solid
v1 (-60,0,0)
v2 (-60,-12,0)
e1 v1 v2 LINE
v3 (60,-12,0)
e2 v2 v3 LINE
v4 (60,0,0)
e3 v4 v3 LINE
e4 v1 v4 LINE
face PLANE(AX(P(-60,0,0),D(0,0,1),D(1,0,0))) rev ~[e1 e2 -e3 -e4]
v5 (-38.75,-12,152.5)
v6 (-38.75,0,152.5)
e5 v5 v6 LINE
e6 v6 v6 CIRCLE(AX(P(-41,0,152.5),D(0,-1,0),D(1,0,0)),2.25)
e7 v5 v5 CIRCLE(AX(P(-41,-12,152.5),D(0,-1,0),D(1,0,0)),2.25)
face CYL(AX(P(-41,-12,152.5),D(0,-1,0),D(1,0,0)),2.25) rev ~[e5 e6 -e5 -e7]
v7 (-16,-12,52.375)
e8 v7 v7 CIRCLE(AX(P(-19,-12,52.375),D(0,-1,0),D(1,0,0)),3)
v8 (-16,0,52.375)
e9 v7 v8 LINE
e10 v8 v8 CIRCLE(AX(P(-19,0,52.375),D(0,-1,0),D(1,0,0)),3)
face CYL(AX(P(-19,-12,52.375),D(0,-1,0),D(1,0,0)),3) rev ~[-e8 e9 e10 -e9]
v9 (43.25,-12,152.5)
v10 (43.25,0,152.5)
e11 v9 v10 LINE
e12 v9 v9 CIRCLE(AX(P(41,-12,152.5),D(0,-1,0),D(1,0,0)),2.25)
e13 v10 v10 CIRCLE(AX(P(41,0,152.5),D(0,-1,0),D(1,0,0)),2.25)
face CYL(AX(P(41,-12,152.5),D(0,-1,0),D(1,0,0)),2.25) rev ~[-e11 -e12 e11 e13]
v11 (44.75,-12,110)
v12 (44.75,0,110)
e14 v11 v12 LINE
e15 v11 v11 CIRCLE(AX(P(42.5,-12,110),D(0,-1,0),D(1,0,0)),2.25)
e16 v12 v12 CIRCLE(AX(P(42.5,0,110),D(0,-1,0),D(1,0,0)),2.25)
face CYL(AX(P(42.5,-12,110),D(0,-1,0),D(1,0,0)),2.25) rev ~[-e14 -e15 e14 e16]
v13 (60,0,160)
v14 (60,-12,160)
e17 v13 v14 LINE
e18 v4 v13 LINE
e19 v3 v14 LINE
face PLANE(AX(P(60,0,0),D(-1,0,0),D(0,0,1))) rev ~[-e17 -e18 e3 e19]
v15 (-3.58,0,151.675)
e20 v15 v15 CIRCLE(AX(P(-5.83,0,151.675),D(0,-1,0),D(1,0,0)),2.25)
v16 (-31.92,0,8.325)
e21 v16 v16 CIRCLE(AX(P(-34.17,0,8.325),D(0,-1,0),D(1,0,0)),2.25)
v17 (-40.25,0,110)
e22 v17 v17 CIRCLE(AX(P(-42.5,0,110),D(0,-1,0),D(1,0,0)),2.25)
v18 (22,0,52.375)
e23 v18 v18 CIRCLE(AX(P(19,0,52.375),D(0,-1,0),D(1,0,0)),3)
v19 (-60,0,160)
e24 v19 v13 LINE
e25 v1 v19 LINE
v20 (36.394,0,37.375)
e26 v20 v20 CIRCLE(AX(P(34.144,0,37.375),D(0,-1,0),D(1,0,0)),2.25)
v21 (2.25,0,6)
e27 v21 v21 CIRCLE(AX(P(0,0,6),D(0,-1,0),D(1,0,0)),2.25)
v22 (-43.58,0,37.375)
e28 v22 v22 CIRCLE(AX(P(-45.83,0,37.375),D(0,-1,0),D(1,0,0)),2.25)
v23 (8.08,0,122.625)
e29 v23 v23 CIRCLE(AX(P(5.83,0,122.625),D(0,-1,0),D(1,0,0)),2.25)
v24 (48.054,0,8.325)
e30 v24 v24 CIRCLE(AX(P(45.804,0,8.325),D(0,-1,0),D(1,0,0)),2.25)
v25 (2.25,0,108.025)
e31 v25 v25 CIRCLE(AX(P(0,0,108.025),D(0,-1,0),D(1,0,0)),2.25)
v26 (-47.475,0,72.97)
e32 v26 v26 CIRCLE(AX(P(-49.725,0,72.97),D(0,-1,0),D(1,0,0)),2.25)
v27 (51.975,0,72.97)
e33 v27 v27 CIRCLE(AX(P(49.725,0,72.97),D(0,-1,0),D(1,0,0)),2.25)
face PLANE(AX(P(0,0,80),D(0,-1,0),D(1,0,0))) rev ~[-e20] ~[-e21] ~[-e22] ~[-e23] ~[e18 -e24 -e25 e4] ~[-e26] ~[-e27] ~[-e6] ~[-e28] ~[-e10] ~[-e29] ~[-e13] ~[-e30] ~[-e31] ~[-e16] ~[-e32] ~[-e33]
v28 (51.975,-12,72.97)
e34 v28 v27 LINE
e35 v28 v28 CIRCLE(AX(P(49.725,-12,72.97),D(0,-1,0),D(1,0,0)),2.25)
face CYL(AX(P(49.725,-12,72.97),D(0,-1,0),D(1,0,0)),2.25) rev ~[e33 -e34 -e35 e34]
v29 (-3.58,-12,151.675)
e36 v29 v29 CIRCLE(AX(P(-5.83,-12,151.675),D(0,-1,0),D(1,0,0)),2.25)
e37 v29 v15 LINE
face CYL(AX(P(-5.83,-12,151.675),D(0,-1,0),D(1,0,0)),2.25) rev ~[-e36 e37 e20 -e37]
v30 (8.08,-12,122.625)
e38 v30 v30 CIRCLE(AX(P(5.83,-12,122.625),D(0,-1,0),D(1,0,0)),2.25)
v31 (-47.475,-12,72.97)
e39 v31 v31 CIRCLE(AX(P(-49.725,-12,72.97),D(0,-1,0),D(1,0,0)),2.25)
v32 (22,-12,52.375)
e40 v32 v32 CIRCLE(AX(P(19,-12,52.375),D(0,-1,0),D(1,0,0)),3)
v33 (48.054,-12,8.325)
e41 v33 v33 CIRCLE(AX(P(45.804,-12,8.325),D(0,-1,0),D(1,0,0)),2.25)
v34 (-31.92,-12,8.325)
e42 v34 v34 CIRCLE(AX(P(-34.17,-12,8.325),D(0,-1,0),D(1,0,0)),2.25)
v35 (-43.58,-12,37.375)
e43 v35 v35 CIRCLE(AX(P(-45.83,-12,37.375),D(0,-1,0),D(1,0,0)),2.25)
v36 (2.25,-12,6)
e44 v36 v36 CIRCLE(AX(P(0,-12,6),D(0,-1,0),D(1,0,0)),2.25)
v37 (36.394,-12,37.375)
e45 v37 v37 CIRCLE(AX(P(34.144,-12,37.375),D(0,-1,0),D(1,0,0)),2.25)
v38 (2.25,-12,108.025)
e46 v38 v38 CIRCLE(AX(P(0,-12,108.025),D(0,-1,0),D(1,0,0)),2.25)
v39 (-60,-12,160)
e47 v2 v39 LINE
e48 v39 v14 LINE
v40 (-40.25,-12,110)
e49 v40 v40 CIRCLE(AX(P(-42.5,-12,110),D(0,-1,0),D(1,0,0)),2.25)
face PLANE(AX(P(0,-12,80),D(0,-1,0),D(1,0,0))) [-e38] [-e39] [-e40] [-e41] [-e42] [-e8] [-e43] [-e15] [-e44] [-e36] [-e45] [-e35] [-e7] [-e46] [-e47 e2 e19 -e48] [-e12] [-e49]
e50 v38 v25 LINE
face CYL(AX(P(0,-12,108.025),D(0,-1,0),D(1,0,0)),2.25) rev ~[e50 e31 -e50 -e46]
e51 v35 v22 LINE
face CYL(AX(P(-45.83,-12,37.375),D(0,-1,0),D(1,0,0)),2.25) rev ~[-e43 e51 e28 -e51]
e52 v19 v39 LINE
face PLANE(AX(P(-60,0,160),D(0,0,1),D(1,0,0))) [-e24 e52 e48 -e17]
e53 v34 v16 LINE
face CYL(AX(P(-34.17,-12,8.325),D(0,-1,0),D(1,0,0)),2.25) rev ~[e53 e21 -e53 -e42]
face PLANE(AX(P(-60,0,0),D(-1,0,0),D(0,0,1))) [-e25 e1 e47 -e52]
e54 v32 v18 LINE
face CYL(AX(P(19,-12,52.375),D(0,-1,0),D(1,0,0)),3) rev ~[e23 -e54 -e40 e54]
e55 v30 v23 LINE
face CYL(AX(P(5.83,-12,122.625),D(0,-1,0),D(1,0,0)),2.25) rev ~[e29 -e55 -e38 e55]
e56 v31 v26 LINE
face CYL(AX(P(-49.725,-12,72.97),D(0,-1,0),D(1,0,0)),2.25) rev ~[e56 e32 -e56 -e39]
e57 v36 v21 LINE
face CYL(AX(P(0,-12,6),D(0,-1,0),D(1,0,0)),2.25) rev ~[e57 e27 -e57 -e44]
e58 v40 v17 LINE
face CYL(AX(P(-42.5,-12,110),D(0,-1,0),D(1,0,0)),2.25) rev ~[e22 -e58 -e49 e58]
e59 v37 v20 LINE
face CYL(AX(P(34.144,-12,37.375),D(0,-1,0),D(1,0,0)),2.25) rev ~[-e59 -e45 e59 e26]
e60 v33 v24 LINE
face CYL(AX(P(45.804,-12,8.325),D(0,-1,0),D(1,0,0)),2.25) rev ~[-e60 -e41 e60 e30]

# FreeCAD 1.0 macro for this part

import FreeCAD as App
import Part
import Sketcher

V = App.Vector

doc = App.newDocument("Part")
body = doc.addObject("PartDesign::Body", "Body")

# Sketch on XZ plane
sketch1 = body.newObject("Sketcher::SketchObject", "Sketch")
sketch1.AttachmentSupport = (doc.getObject("XZ_Plane"), [""])
sketch1.MapMode = "FlatFace"
sketch1.addGeometry([
    Part.LineSegment(V(-60, 160, 0), V(-60, 0, 0)),
    Part.LineSegment(V(-60, 0, 0), V(60, 0, 0)),
    Part.LineSegment(V(60, 0, 0), V(60, 160, 0)),
    Part.LineSegment(V(60, 160, 0), V(-60, 160, 0)),
], False)
sketch1.addConstraint([
    Sketcher.Constraint("Coincident", 0, 2, 1, 1),
    Sketcher.Constraint("Coincident", 1, 2, 2, 1),
    Sketcher.Constraint("Coincident", 2, 2, 3, 1),
    Sketcher.Constraint("Coincident", 3, 2, 0, 1),
    Sketcher.Constraint("Vertical", 0),
    Sketcher.Constraint("Horizontal", 1),
    Sketcher.Constraint("Vertical", 2),
    Sketcher.Constraint("Horizontal", 3),
    Sketcher.Constraint("Symmetric", 0, 2, 1, 2, -1, 1),
    Sketcher.Constraint("DistanceX", 1, 1, 1, 2, 120.0),
    Sketcher.Constraint("DistanceY", 0, 2, 0, 1, 160.0),
])
pad1 = body.newObject("PartDesign::Pad", "Pad")
pad1.Profile = sketch1
pad1.Length = 12

# Sketch on XZ plane
sketch2 = body.newObject("Sketcher::SketchObject", "Sketch001")
sketch2.AttachmentSupport = (doc.getObject("XZ_Plane"), [""])
sketch2.MapMode = "FlatFace"
sketch2.AttachmentOffset = App.Placement(V(0, 0, 12), App.Rotation())
sketch2.addGeometry([
    Part.Circle(V(-45.8, 37.4, 0), V(0, 0, 1), 2.2),  # 0
    Part.Circle(V(-34.2, 8.3, 0), V(0, 0, 1), 2.2),  # 1
    Part.Circle(V(34.1, 37.4, 0), V(0, 0, 1), 2.2),  # 2
    Part.Circle(V(45.8, 8.3, 0), V(0, 0, 1), 2.2),  # 3
    Part.Circle(V(-5.8, 151.7, 0), V(0, 0, 1), 2.2),  # 4
    Part.Circle(V(5.8, 122.6, 0), V(0, 0, 1), 2.2),  # 5
    Part.Circle(V(-49.7, 73, 0), V(0, 0, 1), 2.2),  # 6
    Part.Circle(V(49.7, 73, 0), V(0, 0, 1), 2.2),  # 7
    Part.Circle(V(0, 108, 0), V(0, 0, 1), 2.2),  # 8
    Part.Circle(V(-19, 52.4, 0), V(0, 0, 1), 3),  # 9
    Part.Circle(V(19, 52.4, 0), V(0, 0, 1), 3),  # 10
    Part.Circle(V(0, 6, 0), V(0, 0, 1), 2.2),  # 11
    Part.Circle(V(-41, 152.5, 0), V(0, 0, 1), 2.2),  # 12
    Part.Circle(V(41, 152.5, 0), V(0, 0, 1), 2.2),  # 13
    Part.Circle(V(-42.5, 110, 0), V(0, 0, 1), 2.2),  # 14
    Part.Circle(V(42.5, 110, 0), V(0, 0, 1), 2.2),  # 15
], False)
sketch2.addConstraint([
    Sketcher.Constraint("Equal", 0, 1),
    Sketcher.Constraint("Equal", 1, 2),
    Sketcher.Constraint("Equal", 2, 3),
    Sketcher.Constraint("Equal", 3, 4),
    Sketcher.Constraint("Equal", 4, 5),
    Sketcher.Constraint("Equal", 5, 6),
    Sketcher.Constraint("Equal", 6, 7),
    Sketcher.Constraint("Equal", 7, 8),
    Sketcher.Constraint("Equal", 9, 10),
    Sketcher.Constraint("Equal", 8, 11),
    Sketcher.Constraint("Equal", 11, 12),
    Sketcher.Constraint("Equal", 12, 13),
    Sketcher.Constraint("Equal", 13, 14),
    Sketcher.Constraint("Equal", 14, 15),
    Sketcher.Constraint("Symmetric", 6, 3, 7, 3, -2),
    Sketcher.Constraint("Symmetric", 9, 3, 10, 3, -2),
    Sketcher.Constraint("Symmetric", 12, 3, 13, 3, -2),
    Sketcher.Constraint("Symmetric", 14, 3, 15, 3, -2),
    Sketcher.Constraint("PointOnObject", 8, 3, -2),
    Sketcher.Constraint("PointOnObject", 11, 3, -2),
    Sketcher.Constraint("Horizontal", 0, 3, 2, 3),
    Sketcher.Constraint("Horizontal", 1, 3, 3, 3),
    Sketcher.Constraint("Diameter", 9, 6.0),
    Sketcher.Constraint("Diameter", 0, 4.5),
    Sketcher.Constraint("DistanceX", 9, 3, -1, 1, 19.0),
    Sketcher.Constraint("DistanceY", -1, 1, 11, 3, 6.0),
    Sketcher.Constraint("DistanceX", 12, 3, -1, 1, 41.0),
    Sketcher.Constraint("DistanceY", -1, 1, 14, 3, 110.0),
    Sketcher.Constraint("DistanceX", 0, 3, 4, 3, 40.0),
    Sketcher.Constraint("DistanceX", 1, 3, 5, 3, 40.0),
    Sketcher.Constraint("DistanceY", 0, 3, 9, 3, 15.0),
    Sketcher.Constraint("DistanceY", -1, 1, 12, 3, 152.5),
    Sketcher.Constraint("DistanceX", 14, 3, -1, 1, 42.5),
    Sketcher.Constraint("DistanceY", 2, 3, 4, 3, 114.3),
    Sketcher.Constraint("DistanceY", 3, 3, 5, 3, 114.3),
    Sketcher.Constraint("DistanceY", 8, 3, 5, 3, 14.6),
    Sketcher.Constraint("DistanceX", 0, 3, -1, 1, 45.83),
    Sketcher.Constraint("DistanceX", 1, 3, -1, 1, 34.17),
    Sketcher.Constraint("DistanceY", -1, 1, 6, 3, 72.97),
    Sketcher.Constraint("DistanceY", 1, 3, 0, 3, 29.05),
    Sketcher.Constraint("DistanceX", 2, 3, 3, 3, 11.66),
    Sketcher.Constraint("DistanceX", 6, 3, 7, 3, 99.45),
    Sketcher.Constraint("DistanceY", -1, 1, 0, 3, 37.375),
    Sketcher.Constraint("DistanceX", -1, 1, 2, 3, 34.144),
])
pocket1 = body.newObject("PartDesign::Pocket", "Pocket")
pocket1.Profile = sketch2
pocket1.Type = "ThroughAll"

doc.recompute()
